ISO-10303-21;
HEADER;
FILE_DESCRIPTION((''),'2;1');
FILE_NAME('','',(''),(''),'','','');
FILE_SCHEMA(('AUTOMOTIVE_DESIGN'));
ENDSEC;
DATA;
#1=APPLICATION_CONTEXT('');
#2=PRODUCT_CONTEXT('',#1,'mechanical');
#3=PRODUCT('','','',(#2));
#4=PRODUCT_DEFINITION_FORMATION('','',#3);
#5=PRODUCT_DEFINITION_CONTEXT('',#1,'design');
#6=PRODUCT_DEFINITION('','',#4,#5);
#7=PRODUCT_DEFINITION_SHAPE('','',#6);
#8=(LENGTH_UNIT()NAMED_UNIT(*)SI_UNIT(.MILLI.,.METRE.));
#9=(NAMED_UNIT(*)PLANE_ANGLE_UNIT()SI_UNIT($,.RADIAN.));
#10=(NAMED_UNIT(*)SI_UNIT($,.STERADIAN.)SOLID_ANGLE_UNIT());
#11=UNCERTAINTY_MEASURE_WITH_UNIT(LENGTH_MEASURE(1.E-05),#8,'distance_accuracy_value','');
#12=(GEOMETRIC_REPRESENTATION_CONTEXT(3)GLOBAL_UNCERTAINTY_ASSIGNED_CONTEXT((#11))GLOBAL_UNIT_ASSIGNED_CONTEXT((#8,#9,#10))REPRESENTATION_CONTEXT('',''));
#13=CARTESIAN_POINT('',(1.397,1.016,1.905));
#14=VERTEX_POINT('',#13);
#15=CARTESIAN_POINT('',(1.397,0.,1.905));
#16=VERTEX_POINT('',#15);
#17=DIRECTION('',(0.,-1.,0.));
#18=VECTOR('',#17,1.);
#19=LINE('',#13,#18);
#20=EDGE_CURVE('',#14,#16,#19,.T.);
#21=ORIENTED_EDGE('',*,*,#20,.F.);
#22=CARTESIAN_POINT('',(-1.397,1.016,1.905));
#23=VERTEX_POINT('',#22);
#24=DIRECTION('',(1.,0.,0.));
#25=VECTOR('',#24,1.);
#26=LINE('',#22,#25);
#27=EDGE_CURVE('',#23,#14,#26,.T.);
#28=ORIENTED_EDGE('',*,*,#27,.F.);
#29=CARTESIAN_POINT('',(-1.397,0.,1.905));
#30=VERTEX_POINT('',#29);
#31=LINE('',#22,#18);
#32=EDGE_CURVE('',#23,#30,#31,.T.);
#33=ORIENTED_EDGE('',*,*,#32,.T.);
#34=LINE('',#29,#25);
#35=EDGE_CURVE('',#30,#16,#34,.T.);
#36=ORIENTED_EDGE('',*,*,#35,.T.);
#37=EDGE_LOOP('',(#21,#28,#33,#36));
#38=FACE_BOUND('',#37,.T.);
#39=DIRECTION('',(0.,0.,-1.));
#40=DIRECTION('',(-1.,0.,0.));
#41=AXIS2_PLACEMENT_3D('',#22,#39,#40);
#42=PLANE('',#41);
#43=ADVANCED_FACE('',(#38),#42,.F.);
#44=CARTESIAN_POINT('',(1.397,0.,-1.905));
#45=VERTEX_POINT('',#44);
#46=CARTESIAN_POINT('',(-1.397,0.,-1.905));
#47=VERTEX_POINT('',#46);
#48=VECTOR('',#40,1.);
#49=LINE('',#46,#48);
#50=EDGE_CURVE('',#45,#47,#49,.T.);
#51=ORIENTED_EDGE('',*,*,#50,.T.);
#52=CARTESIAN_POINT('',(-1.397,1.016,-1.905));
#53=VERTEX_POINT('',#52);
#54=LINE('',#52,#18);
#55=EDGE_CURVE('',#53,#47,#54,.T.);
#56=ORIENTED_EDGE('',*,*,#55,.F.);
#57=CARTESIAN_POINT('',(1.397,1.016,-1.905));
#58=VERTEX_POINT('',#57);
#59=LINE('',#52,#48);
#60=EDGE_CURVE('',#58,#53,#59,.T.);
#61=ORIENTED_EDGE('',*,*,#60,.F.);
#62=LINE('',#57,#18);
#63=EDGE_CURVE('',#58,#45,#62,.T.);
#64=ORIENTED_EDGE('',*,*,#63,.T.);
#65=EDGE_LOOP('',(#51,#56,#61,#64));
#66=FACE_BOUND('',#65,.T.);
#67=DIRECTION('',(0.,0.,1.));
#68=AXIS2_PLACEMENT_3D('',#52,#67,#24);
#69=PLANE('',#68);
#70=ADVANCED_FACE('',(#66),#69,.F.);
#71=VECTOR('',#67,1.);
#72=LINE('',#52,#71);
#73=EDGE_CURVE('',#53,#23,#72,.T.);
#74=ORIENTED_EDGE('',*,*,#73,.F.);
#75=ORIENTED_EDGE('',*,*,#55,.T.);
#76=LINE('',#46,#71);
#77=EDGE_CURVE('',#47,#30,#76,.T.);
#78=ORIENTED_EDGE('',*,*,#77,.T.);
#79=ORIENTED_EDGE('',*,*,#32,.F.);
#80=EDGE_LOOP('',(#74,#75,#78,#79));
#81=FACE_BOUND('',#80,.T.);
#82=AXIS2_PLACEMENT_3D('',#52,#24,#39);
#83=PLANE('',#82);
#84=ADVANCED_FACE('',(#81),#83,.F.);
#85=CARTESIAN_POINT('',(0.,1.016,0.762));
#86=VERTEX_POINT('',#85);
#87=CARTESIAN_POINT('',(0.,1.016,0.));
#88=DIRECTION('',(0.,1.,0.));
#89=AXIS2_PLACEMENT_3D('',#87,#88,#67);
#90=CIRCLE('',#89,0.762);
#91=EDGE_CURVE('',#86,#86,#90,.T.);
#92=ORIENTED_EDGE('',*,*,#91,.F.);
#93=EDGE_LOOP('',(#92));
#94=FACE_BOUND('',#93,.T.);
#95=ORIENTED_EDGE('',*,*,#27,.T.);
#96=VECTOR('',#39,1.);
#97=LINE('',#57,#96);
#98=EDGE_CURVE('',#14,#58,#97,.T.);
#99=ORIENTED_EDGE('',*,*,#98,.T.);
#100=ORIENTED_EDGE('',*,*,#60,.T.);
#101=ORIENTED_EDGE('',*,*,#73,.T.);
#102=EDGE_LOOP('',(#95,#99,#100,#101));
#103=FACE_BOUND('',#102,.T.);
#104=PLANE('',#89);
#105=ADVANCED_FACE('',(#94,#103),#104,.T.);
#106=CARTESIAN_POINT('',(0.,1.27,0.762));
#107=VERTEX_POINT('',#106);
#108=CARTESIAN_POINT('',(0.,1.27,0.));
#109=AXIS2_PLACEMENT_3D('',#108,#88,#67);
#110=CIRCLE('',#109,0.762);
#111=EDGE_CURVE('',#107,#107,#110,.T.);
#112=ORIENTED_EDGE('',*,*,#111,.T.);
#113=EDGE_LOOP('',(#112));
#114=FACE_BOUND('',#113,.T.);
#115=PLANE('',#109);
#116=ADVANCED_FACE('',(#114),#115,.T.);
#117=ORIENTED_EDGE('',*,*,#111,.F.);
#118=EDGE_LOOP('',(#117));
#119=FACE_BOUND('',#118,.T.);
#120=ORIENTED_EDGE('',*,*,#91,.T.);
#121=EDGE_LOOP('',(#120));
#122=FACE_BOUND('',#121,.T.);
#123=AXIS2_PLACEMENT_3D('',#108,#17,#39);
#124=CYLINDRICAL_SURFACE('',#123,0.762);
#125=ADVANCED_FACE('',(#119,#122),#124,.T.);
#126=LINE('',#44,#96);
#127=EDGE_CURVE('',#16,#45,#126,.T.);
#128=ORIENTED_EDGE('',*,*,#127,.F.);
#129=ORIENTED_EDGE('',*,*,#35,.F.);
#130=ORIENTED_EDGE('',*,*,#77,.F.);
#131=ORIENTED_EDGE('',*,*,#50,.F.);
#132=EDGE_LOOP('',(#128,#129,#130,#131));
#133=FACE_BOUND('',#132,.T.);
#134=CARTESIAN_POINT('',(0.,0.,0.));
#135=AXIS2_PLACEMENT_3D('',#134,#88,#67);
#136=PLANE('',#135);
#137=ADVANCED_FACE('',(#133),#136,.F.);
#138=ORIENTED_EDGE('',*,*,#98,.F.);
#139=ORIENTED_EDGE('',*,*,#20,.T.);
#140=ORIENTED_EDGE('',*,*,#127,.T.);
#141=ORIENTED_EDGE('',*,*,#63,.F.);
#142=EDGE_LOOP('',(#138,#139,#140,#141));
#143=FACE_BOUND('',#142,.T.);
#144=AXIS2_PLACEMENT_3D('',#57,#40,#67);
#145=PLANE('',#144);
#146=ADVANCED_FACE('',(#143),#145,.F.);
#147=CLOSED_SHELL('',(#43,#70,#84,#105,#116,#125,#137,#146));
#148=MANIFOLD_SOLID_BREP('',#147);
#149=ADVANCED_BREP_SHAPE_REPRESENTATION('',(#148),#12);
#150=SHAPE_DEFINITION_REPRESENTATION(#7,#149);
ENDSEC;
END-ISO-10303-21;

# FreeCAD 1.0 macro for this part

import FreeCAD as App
import Part
import Sketcher

V = App.Vector
Q = App.Units.Quantity


def add_polygon(sketch, points):
    """Adds a closed chain of lines whose ends are joined by coincident constraints."""
    first, n = sketch.GeometryCount, len(points)
    for a, b in zip(points, points[1:] + points[:1]):
        sketch.addGeometry(Part.LineSegment(App.Vector(*a, 0), App.Vector(*b, 0)), False)
    for i in range(n):
        sketch.addConstraint(Sketcher.Constraint("Coincident", first + i, 2, first + (i + 1) % n, 1))

doc = App.newDocument("Part")
params = doc.addObject("Spreadsheet::Sheet", "Params")
for row, (alias, value) in enumerate([
    ("sketch1_width", "0.11 in"),
    ("sketch1_height", "0.15 in"),
    ("pad1_length", "0.04 in"),
    ("sketch2_diameter", "0.06 in"),
    ("pad2_length", "0.01 in"),
], start=1):
    params.set(f"A{row}", alias)
    params.set(f"B{row}", "=" + value)
    params.setAlias(f"B{row}", alias)

body = doc.addObject("PartDesign::Body", "Body")

sketch1 = body.newObject("Sketcher::SketchObject", "Sketch")
sketch1.AttachmentSupport = (doc.getObject("XZ_Plane"), [""])
sketch1.MapMode = "FlatFace"
add_polygon(sketch1, [(-1.397, -1.905), (-1.397, 1.905), (1.397, 1.905), (1.397, -1.905)])
sketch1.addConstraint(Sketcher.Constraint("Vertical", 0))
sketch1.addConstraint(Sketcher.Constraint("Horizontal", 1))
sketch1.addConstraint(Sketcher.Constraint("Vertical", 2))
sketch1.addConstraint(Sketcher.Constraint("Horizontal", 3))
sketch1.addConstraint(Sketcher.Constraint("Symmetric", 0, 2, 2, 2, -1, 1))
sketch1.addConstraint(Sketcher.Constraint("DistanceX", 1, 1, 1, 2, Q("0.11 in")))
sketch1.addConstraint(Sketcher.Constraint("DistanceY", 0, 1, 0, 2, Q("0.15 in")))
sketch1.setExpression("Constraints[9]", "Params.sketch1_width")
sketch1.setExpression("Constraints[10]", "Params.sketch1_height")
pad1 = body.newObject("PartDesign::Pad", "Pad")
pad1.Profile = sketch1
pad1.setExpression("Length", "Params.pad1_length")
pad1.Reversed = True

sketch2 = body.newObject("Sketcher::SketchObject", "Sketch001")
sketch2.AttachmentSupport = (doc.getObject("XZ_Plane"), [""])
sketch2.MapMode = "FlatFace"
sketch2.AttachmentOffset = App.Placement(V(0, 0, -0.04 * 25.4), App.Rotation())
sketch2.addGeometry(Part.Circle(V(0, 0, 0), V(0, 0, 1), 0.762), False)
sketch2.addConstraint(Sketcher.Constraint("Coincident", 0, 3, -1, 1))
sketch2.addConstraint(Sketcher.Constraint("Diameter", 0, Q("0.06 in")))
sketch2.setExpression("Constraints[1]", "Params.sketch2_diameter")
pad2 = body.newObject("PartDesign::Pad", "Pad001")
pad2.Profile = sketch2
pad2.setExpression("Length", "Params.pad2_length")
pad2.Reversed = True

doc.recompute()
